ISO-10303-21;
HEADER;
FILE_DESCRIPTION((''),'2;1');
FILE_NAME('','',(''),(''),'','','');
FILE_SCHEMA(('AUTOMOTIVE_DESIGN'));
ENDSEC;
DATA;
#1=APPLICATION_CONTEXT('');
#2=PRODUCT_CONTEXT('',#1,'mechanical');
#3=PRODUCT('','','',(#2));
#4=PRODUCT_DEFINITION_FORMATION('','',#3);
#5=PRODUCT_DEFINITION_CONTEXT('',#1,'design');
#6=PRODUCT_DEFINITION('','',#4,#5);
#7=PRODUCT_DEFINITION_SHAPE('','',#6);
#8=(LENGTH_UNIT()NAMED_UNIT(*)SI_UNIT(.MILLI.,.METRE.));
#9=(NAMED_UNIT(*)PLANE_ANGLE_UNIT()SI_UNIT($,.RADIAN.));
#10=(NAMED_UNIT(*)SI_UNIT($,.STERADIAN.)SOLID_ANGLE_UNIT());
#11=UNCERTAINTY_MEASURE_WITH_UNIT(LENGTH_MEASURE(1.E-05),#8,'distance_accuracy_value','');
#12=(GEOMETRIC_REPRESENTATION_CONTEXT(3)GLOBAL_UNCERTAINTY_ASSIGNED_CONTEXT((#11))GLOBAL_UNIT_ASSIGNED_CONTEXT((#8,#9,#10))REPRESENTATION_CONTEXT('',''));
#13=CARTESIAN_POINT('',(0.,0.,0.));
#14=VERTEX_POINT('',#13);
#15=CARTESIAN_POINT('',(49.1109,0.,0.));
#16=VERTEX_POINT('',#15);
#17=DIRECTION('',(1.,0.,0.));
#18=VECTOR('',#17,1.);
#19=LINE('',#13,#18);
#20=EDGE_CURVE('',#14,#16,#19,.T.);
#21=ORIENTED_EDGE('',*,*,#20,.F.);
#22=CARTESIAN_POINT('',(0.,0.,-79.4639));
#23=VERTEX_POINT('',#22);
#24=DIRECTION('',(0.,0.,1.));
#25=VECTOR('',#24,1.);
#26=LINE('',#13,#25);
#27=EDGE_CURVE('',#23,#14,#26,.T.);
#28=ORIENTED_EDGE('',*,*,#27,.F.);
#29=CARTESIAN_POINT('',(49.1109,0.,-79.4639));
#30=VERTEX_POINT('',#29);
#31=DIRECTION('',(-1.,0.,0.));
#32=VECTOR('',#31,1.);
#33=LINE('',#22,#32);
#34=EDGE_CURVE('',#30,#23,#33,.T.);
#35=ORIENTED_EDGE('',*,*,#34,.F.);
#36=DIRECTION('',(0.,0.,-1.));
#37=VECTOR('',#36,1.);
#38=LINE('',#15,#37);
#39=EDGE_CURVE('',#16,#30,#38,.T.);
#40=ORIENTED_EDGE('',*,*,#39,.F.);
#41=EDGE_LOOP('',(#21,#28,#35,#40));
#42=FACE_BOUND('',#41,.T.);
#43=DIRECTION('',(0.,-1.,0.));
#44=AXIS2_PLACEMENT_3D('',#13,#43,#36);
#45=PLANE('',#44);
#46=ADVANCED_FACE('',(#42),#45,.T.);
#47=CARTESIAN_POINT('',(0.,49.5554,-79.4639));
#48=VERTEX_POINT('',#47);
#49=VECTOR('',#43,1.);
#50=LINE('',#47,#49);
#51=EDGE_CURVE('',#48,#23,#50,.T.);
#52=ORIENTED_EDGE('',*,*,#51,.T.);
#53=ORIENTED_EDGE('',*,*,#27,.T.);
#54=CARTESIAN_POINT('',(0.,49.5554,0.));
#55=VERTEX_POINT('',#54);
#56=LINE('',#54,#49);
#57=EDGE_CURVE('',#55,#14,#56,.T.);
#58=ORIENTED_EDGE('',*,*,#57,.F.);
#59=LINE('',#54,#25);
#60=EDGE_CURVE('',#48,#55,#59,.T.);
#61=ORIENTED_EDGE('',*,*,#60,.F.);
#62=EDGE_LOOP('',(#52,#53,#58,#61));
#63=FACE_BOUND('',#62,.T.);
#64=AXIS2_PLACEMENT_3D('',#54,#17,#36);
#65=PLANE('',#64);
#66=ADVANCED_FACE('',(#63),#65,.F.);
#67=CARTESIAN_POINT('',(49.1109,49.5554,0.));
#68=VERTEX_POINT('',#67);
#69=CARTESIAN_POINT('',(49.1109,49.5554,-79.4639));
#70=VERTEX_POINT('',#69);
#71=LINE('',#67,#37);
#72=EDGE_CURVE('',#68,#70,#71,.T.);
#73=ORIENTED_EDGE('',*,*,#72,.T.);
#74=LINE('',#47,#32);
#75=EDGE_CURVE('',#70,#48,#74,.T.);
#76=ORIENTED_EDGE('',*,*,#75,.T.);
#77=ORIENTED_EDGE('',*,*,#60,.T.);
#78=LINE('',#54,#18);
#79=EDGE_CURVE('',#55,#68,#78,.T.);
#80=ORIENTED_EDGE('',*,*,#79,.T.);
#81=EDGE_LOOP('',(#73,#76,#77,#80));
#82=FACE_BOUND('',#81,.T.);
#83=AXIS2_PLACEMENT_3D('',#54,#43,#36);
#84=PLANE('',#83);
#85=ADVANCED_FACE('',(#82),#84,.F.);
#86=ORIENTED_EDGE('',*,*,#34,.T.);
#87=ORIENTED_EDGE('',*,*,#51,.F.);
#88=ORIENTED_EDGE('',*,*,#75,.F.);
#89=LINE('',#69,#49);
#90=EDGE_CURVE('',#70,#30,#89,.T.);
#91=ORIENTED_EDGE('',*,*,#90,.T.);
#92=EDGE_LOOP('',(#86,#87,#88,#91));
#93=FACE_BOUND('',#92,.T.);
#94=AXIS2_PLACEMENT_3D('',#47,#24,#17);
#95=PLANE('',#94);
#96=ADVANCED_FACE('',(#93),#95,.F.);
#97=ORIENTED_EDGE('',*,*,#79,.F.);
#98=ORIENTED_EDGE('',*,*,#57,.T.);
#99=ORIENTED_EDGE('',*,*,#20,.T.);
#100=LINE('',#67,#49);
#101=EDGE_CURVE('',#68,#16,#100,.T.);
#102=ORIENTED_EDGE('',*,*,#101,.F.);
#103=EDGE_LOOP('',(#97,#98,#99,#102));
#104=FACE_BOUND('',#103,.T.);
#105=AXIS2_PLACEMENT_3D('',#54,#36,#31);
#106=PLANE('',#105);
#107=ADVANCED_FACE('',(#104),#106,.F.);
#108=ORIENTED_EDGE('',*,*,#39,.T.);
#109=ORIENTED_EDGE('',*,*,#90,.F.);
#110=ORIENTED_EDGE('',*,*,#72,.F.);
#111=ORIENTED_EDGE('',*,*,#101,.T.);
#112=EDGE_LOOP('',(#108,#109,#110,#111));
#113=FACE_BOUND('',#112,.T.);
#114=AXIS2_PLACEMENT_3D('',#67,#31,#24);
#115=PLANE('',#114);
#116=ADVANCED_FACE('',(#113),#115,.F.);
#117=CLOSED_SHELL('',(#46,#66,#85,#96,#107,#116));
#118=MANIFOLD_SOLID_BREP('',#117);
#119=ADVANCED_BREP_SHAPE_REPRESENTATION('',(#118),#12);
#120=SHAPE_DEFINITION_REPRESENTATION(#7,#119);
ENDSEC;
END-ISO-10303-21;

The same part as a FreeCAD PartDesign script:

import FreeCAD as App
import Part
import Sketcher
from FreeCAD import Vector
Q = App.Units.Quantity


def add_polygon(sketch, points):
    """Adds a closed chain of lines whose ends are joined by coincident constraints."""
    first, n = sketch.GeometryCount, len(points)
    for a, b in zip(points, points[1:] + points[:1]):
        sketch.addGeometry(Part.LineSegment(App.Vector(*a, 0), App.Vector(*b, 0)), False)
    for i in range(n):
        sketch.addConstraint(Sketcher.Constraint("Coincident", first + i, 2, first + (i + 1) % n, 1))

doc = App.newDocument("Part")
body = doc.addObject("PartDesign::Body", "Body")

sketch1 = doc.addObject("Sketcher::SketchObject", "Sketch")
body.addObject(sketch1)
sketch1.AttachmentSupport = (doc.XZ_Plane, [""])
sketch1.MapMode = "FlatFace"
add_polygon(sketch1, [(0, -79), (0, 0), (49, 0), (49, -79)])
sketch1.addConstraint(Sketcher.Constraint("Vertical", 0))
sketch1.addConstraint(Sketcher.Constraint("Horizontal", 1))
sketch1.addConstraint(Sketcher.Constraint("Vertical", 2))
sketch1.addConstraint(Sketcher.Constraint("Horizontal", 3))
sketch1.addConstraint(Sketcher.Constraint("Coincident", 0, 2, -1, 1))
sketch1.addConstraint(Sketcher.Constraint("DistanceX", 1, 1, 1, 2, Q("1.9335 in")))
sketch1.addConstraint(Sketcher.Constraint("DistanceY", 0, 1, 0, 2, Q("3.1285 in")))
pad1 = doc.addObject("PartDesign::Pad", "Pad")
body.addObject(pad1)
pad1.Profile = sketch1
pad1.Length = Q("1.951 in")
pad1.Reversed = True

doc.recompute()
